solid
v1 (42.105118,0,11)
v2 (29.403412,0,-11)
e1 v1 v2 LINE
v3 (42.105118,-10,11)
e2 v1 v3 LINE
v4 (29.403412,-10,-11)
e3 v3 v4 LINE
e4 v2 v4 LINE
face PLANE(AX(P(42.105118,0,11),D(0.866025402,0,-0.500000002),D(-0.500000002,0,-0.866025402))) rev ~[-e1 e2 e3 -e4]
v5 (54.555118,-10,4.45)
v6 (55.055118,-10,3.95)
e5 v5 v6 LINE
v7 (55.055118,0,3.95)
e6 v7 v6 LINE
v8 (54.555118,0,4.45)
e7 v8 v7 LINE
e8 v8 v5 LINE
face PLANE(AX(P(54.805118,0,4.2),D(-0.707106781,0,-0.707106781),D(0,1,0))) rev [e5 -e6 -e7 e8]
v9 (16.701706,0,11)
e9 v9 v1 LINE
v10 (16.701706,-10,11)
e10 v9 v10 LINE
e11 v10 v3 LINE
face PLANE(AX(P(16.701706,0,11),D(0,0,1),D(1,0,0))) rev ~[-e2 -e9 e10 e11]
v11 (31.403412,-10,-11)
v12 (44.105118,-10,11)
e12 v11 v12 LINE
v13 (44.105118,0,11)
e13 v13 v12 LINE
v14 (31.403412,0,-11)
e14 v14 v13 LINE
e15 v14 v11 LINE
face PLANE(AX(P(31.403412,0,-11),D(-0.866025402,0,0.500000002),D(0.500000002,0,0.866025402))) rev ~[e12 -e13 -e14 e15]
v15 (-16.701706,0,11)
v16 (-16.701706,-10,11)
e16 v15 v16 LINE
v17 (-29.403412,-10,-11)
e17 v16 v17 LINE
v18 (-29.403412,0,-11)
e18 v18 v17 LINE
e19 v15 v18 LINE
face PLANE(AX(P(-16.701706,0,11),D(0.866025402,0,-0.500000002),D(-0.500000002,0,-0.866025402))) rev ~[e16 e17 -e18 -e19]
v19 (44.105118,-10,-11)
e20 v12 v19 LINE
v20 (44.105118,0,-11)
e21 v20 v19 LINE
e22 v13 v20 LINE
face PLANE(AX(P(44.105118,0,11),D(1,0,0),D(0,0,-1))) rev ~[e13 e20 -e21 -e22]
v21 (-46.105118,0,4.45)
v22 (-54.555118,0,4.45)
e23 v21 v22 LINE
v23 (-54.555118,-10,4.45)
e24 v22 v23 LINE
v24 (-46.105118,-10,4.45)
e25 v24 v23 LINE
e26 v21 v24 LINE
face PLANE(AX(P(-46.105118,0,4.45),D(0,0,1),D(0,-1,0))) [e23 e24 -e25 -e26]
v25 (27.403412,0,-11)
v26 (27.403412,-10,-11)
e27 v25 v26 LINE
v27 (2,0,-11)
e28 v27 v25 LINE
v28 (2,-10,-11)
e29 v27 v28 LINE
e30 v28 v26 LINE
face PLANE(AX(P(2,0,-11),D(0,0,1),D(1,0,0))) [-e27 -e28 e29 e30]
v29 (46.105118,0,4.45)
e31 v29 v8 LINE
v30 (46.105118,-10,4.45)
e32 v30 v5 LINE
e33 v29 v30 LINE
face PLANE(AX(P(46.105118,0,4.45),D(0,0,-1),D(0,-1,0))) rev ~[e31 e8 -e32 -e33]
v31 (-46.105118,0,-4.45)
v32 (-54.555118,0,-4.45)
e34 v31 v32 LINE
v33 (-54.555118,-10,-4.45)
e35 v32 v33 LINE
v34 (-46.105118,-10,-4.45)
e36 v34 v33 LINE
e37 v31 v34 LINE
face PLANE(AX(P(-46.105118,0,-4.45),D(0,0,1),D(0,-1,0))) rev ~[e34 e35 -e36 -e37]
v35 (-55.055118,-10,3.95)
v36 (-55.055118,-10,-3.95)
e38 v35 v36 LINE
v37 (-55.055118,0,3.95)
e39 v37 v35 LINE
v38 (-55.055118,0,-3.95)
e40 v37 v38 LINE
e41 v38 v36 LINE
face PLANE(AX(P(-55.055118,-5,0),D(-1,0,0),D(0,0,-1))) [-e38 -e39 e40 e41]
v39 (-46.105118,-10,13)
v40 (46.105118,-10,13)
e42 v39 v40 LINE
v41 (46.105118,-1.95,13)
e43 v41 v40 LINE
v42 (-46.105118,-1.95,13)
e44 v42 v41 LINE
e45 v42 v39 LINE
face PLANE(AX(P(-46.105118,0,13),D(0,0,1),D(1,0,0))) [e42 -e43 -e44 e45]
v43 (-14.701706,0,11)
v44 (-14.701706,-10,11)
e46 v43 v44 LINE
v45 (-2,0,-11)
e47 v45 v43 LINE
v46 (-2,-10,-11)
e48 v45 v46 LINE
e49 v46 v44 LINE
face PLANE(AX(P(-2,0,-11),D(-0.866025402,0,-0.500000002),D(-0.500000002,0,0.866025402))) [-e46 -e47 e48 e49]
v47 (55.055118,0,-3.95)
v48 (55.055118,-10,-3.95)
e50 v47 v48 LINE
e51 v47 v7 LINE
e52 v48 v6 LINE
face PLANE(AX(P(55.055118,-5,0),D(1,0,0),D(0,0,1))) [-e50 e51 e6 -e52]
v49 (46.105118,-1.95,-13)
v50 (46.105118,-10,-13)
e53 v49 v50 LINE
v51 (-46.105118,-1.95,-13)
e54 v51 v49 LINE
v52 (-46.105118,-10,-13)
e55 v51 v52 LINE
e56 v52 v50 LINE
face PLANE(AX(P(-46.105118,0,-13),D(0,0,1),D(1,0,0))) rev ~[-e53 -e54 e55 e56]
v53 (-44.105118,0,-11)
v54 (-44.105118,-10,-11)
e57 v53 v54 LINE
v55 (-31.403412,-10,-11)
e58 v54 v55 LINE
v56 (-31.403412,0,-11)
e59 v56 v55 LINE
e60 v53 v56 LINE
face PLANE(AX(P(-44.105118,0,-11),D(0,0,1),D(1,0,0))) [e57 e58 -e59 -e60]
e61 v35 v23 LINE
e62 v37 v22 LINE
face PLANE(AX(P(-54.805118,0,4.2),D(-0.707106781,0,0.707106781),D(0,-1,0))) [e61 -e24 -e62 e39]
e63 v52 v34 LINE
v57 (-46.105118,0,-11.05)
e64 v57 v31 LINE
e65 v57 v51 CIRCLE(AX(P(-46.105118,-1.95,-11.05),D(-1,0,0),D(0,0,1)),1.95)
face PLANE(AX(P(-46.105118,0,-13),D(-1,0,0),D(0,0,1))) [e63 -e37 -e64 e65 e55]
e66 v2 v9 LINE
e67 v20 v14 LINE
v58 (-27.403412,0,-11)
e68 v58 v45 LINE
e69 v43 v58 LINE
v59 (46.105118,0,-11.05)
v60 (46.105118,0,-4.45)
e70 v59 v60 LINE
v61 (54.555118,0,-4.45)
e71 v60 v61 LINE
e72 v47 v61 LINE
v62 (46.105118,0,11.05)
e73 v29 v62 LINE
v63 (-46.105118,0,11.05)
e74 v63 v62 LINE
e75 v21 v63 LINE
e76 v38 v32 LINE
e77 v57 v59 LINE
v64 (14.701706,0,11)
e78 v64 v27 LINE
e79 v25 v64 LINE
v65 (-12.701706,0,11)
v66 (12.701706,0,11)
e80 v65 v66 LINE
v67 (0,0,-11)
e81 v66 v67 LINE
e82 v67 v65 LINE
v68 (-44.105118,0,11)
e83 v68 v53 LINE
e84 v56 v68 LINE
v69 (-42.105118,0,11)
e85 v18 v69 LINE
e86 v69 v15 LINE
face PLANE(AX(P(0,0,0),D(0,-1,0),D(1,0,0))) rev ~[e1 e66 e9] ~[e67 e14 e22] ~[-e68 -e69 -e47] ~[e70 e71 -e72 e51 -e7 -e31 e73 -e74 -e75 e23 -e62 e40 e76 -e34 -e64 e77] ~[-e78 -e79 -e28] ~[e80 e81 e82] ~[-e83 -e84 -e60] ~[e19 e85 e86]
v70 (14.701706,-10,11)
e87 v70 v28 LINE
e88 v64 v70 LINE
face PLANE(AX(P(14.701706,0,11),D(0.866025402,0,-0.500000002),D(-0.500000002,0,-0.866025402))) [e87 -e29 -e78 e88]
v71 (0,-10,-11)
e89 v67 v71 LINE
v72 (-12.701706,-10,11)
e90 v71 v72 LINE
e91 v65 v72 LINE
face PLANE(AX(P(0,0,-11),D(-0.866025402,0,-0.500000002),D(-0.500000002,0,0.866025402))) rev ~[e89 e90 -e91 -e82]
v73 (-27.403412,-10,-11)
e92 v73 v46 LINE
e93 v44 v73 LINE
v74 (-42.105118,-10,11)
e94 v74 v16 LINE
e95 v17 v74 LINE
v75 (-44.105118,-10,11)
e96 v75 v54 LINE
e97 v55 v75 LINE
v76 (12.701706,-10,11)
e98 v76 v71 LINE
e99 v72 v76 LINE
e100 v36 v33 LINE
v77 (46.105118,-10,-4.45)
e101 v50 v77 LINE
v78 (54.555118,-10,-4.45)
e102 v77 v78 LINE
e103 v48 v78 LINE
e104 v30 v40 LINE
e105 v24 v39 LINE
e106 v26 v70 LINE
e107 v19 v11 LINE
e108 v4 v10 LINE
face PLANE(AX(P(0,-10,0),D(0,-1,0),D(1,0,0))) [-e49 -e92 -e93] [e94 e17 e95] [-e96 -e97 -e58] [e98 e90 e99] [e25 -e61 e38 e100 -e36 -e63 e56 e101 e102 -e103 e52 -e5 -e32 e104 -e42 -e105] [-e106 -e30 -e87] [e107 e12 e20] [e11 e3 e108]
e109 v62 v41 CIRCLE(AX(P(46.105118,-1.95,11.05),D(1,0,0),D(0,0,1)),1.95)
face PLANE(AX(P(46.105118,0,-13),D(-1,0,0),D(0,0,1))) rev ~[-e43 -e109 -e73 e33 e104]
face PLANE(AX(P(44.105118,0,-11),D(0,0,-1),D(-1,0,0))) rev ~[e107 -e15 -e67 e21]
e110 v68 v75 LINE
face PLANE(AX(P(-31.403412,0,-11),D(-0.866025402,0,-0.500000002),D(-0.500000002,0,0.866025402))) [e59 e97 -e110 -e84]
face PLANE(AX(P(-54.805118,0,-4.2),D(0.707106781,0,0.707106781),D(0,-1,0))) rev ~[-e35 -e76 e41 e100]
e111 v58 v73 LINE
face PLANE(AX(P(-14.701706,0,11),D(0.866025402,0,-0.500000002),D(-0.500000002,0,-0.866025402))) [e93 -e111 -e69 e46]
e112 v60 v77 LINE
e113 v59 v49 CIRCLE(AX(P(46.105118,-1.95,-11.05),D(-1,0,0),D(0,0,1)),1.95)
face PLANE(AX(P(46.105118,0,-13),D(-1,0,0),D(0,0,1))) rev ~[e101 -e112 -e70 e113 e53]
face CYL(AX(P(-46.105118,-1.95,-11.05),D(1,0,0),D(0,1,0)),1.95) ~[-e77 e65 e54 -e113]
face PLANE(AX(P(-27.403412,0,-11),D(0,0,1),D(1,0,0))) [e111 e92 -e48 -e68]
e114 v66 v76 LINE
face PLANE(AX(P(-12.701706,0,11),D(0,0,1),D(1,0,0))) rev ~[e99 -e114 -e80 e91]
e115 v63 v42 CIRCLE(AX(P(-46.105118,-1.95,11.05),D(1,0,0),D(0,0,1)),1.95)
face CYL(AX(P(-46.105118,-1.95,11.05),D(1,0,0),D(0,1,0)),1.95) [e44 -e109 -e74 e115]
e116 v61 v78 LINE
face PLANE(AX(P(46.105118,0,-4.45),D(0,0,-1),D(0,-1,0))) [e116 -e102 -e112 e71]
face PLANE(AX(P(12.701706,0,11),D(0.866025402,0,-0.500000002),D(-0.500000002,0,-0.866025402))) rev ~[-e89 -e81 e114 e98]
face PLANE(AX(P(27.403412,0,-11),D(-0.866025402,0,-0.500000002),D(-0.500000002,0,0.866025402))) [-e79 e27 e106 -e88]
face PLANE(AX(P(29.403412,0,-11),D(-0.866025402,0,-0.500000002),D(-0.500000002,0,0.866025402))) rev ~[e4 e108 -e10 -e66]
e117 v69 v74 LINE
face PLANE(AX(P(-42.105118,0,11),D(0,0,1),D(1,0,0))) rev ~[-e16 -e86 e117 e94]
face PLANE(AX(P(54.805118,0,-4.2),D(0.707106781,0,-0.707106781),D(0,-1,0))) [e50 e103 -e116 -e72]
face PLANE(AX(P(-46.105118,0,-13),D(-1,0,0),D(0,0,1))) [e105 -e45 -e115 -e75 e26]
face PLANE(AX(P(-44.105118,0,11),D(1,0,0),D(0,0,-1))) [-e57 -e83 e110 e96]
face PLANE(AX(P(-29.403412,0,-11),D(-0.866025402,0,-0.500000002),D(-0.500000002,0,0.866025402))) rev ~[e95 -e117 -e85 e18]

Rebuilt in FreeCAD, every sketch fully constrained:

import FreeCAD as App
import Part
import Sketcher

V = App.Vector
Q = App.Units.Quantity


def edges_at(feature, points):
    """Names of the edges that pass closest to the given points."""
    edges = feature.Shape.Edges
    near = lambda p: min(range(len(edges)), key=lambda i: edges[i].distToShape(Part.Vertex(*p))[0])
    return sorted({f"Edge{near(p) + 1}" for p in points})

doc = App.newDocument("Part")
body = doc.addObject("PartDesign::Body", "Body")

sketch1 = body.newObject("Sketcher::SketchObject", "Sketch")
sketch1.AttachmentSupport = (doc.getObject("XZ_Plane"), [""])
sketch1.MapMode = "FlatFace"
sketch1.addGeometry([
    Part.LineSegment(V(-46, 13, 0), V(-46, -13, 0)),
    Part.LineSegment(V(-46, -13, 0), V(46, -13, 0)),
    Part.LineSegment(V(46, -13, 0), V(46, 13, 0)),
    Part.LineSegment(V(46, 13, 0), V(-46, 13, 0)),
    Part.LineSegment(V(-44, -11, 0), V(-44, 11, 0)),
    Part.LineSegment(V(-44, 11, 0), V(-31, -11, 0)),
    Part.LineSegment(V(-31, -11, 0), V(-44, -11, 0)),
    Part.LineSegment(V(-17, 11, 0), V(-29, -11, 0)),
    Part.LineSegment(V(-29, -11, 0), V(-42, 11, 0)),
    Part.LineSegment(V(-42, 11, 0), V(-17, 11, 0)),
    Part.LineSegment(V(-27, -11, 0), V(-15, 11, 0)),
    Part.LineSegment(V(-15, 11, 0), V(-2, -11, 0)),
    Part.LineSegment(V(-2, -11, 0), V(-27, -11, 0)),
    Part.LineSegment(V(0, -11, 0), V(-13, 11, 0)),
    Part.LineSegment(V(-13, 11, 0), V(13, 11, 0)),
    Part.LineSegment(V(13, 11, 0), V(0, -11, 0)),
    Part.LineSegment(V(2, -11, 0), V(15, 11, 0)),
    Part.LineSegment(V(15, 11, 0), V(27, -11, 0)),
    Part.LineSegment(V(27, -11, 0), V(2, -11, 0)),
    Part.LineSegment(V(29, -11, 0), V(17, 11, 0)),
    Part.LineSegment(V(17, 11, 0), V(42, 11, 0)),
    Part.LineSegment(V(42, 11, 0), V(29, -11, 0)),
    Part.LineSegment(V(31, -11, 0), V(44, 11, 0)),
    Part.LineSegment(V(44, 11, 0), V(44, -11, 0)),
    Part.LineSegment(V(44, -11, 0), V(31, -11, 0)),
], False)
sketch1.addConstraint([
    Sketcher.Constraint("Coincident", 0, 2, 1, 1),
    Sketcher.Constraint("Coincident", 1, 2, 2, 1),
    Sketcher.Constraint("Coincident", 2, 2, 3, 1),
    Sketcher.Constraint("Coincident", 3, 2, 0, 1),
    Sketcher.Constraint("Coincident", 4, 2, 5, 1),
    Sketcher.Constraint("Coincident", 5, 2, 6, 1),
    Sketcher.Constraint("Coincident", 6, 2, 4, 1),
    Sketcher.Constraint("Coincident", 7, 2, 8, 1),
    Sketcher.Constraint("Coincident", 8, 2, 9, 1),
    Sketcher.Constraint("Coincident", 9, 2, 7, 1),
    Sketcher.Constraint("Coincident", 10, 2, 11, 1),
    Sketcher.Constraint("Coincident", 11, 2, 12, 1),
    Sketcher.Constraint("Coincident", 12, 2, 10, 1),
    Sketcher.Constraint("Coincident", 13, 2, 14, 1),
    Sketcher.Constraint("Coincident", 14, 2, 15, 1),
    Sketcher.Constraint("Coincident", 15, 2, 13, 1),
    Sketcher.Constraint("Coincident", 16, 2, 17, 1),
    Sketcher.Constraint("Coincident", 17, 2, 18, 1),
    Sketcher.Constraint("Coincident", 18, 2, 16, 1),
    Sketcher.Constraint("Coincident", 19, 2, 20, 1),
    Sketcher.Constraint("Coincident", 20, 2, 21, 1),
    Sketcher.Constraint("Coincident", 21, 2, 19, 1),
    Sketcher.Constraint("Coincident", 22, 2, 23, 1),
    Sketcher.Constraint("Coincident", 23, 2, 24, 1),
    Sketcher.Constraint("Coincident", 24, 2, 22, 1),
    Sketcher.Constraint("Vertical", 0),
    Sketcher.Constraint("Horizontal", 1),
    Sketcher.Constraint("Vertical", 2),
    Sketcher.Constraint("Horizontal", 3),
    Sketcher.Constraint("Vertical", 4),
    Sketcher.Constraint("Horizontal", 6),
    Sketcher.Constraint("Horizontal", 9),
    Sketcher.Constraint("Horizontal", 12),
    Sketcher.Constraint("Horizontal", 14),
    Sketcher.Constraint("Horizontal", 18),
    Sketcher.Constraint("Horizontal", 20),
    Sketcher.Constraint("Vertical", 23),
    Sketcher.Constraint("Horizontal", 24),
    Sketcher.Constraint("Symmetric", 0, 2, 2, 2, -1, 1),
    Sketcher.Constraint("Symmetric", 6, 2, 22, 2, -1, 1),
    Sketcher.Constraint("Symmetric", 10, 2, 16, 2, -2),
    Sketcher.Constraint("Symmetric", 12, 2, 17, 2, -2),
    Sketcher.Constraint("Symmetric", 9, 2, 19, 2, -2),
    Sketcher.Constraint("Symmetric", 7, 2, 21, 2, -2),
    Sketcher.Constraint("Symmetric", 5, 2, 24, 2, -2),
    Sketcher.Constraint("PointOnObject", 15, 2, -2),
    Sketcher.Constraint("Parallel", 5, 8),
    Sketcher.Constraint("Parallel", 7, 10),
    Sketcher.Constraint("Parallel", 8, 11),
    Sketcher.Constraint("Parallel", 11, 13),
    Sketcher.Constraint("Parallel", 10, 15),
    Sketcher.Constraint("Parallel", 15, 16),
    Sketcher.Constraint("Parallel", 13, 17),
    Sketcher.Constraint("Parallel", 16, 21),
    Sketcher.Constraint("Parallel", 21, 22),
    Sketcher.Constraint("Horizontal", 6, 2, 7, 2),
    Sketcher.Constraint("Horizontal", 4, 2, 8, 2),
    Sketcher.Constraint("Horizontal", 9, 2, 10, 2),
    Sketcher.Constraint("Horizontal", 7, 2, 11, 2),
    Sketcher.Constraint("Horizontal", 10, 2, 13, 2),
    Sketcher.Constraint("Horizontal", 12, 2, 15, 2),
    Sketcher.Constraint("DistanceY", 0, 2, 0, 1, 26.0),
    Sketcher.Constraint("DistanceY", 4, 1, 4, 2, 22.0),
    Sketcher.Constraint("Angle", 5, Q("-60 deg")),
    Sketcher.Constraint("DistanceX", 11, 2, -1, 1, 2.0),
    Sketcher.Constraint("DistanceX", 3, 2, 4, 2, 2.0),
    Sketcher.Constraint("DistanceX", 5, 2, 7, 2, 2.0),
    Sketcher.Constraint("DistanceX", 9, 2, 10, 2, 2.0),
])
pad1 = body.newObject("PartDesign::Pad", "Pad")
pad1.Profile = sketch1
pad1.Length = 10

sketch2 = body.newObject("Sketcher::SketchObject", "Sketch001")
sketch2.AttachmentSupport = (doc.getObject("YZ_Plane"), [""])
sketch2.MapMode = "FlatFace"
sketch2.AttachmentOffset = App.Placement(V(0, 0, -46.105118), App.Rotation())
sketch2.addGeometry([
    Part.LineSegment(V(-10, 4, 0), V(0, 4, 0)),
    Part.LineSegment(V(0, 4, 0), V(0, -4, 0)),
    Part.LineSegment(V(0, -4, 0), V(-10, -4, 0)),
    Part.LineSegment(V(-10, -4, 0), V(-10, 4, 0)),
], False)
sketch2.addConstraint([
    Sketcher.Constraint("Coincident", 0, 2, 1, 1),
    Sketcher.Constraint("Coincident", 1, 2, 2, 1),
    Sketcher.Constraint("Coincident", 2, 2, 3, 1),
    Sketcher.Constraint("Coincident", 3, 2, 0, 1),
    Sketcher.Constraint("Horizontal", 0),
    Sketcher.Constraint("Vertical", 1),
    Sketcher.Constraint("Horizontal", 2),
    Sketcher.Constraint("Vertical", 3),
    Sketcher.Constraint("Symmetric", 0, 2, 1, 2, -1, 1),
    Sketcher.Constraint("DistanceX", 0, 1, 0, 2, 10.0),
    Sketcher.Constraint("DistanceY", 1, 2, 1, 1, 8.9),
])
pad2 = body.newObject("PartDesign::Pad", "Pad001")
pad2.Profile = sketch2
pad2.Length = 8.95
pad2.Reversed = True
doc.recompute()

chamfer = body.newObject("PartDesign::Chamfer", "Chamfer")
chamfer.Base = (pad2, edges_at(pad2, [(-55.055, -5, 4.45)]))
chamfer.Size = 0.5
doc.recompute()

chamfer2 = body.newObject("PartDesign::Chamfer", "Chamfer001")
chamfer2.Base = (chamfer, edges_at(chamfer, [(-55.055, -5, -4.45)]))
chamfer2.Size = 0.5

sketch3 = body.newObject("Sketcher::SketchObject", "Sketch002")
sketch3.AttachmentSupport = (doc.getObject("YZ_Plane"), [""])
sketch3.MapMode = "FlatFace"
sketch3.AttachmentOffset = App.Placement(V(0, 0, 46.105118), App.Rotation())
sketch3.addGeometry([
    Part.LineSegment(V(-10, -4, 0), V(0, -4, 0)),
    Part.LineSegment(V(0, -4, 0), V(0, 4, 0)),
    Part.LineSegment(V(0, 4, 0), V(-10, 4, 0)),
    Part.LineSegment(V(-10, 4, 0), V(-10, -4, 0)),
], False)
sketch3.addConstraint([
    Sketcher.Constraint("Coincident", 0, 2, 1, 1),
    Sketcher.Constraint("Coincident", 1, 2, 2, 1),
    Sketcher.Constraint("Coincident", 2, 2, 3, 1),
    Sketcher.Constraint("Coincident", 3, 2, 0, 1),
    Sketcher.Constraint("Horizontal", 0),
    Sketcher.Constraint("Vertical", 1),
    Sketcher.Constraint("Horizontal", 2),
    Sketcher.Constraint("Vertical", 3),
    Sketcher.Constraint("Symmetric", 0, 2, 1, 2, -1, 1),
    Sketcher.Constraint("DistanceX", 0, 1, 0, 2, 10.0),
    Sketcher.Constraint("DistanceY", 1, 1, 1, 2, 8.9),
])
pad3 = body.newObject("PartDesign::Pad", "Pad002")
pad3.Profile = sketch3
pad3.Length = 8.95
doc.recompute()

chamfer3 = body.newObject("PartDesign::Chamfer", "Chamfer002")
chamfer3.Base = (pad3, edges_at(pad3, [(55.055, -5, 4.45)]))
chamfer3.Size = 0.5
doc.recompute()

chamfer4 = body.newObject("PartDesign::Chamfer", "Chamfer003")
chamfer4.Base = (chamfer3, edges_at(chamfer3, [(55.055, -5, -4.45)]))
chamfer4.Size = 0.5
doc.recompute()

fillet = body.newObject("PartDesign::Fillet", "Fillet")
fillet.Base = (chamfer4, edges_at(chamfer4, [(0, 0, 13)]))
fillet.Radius = 1.95
doc.recompute()

fillet2 = body.newObject("PartDesign::Fillet", "Fillet001")
fillet2.Base = (fillet, edges_at(fillet, [(0, 0, -13)]))
fillet2.Radius = 1.95

doc.recompute()
